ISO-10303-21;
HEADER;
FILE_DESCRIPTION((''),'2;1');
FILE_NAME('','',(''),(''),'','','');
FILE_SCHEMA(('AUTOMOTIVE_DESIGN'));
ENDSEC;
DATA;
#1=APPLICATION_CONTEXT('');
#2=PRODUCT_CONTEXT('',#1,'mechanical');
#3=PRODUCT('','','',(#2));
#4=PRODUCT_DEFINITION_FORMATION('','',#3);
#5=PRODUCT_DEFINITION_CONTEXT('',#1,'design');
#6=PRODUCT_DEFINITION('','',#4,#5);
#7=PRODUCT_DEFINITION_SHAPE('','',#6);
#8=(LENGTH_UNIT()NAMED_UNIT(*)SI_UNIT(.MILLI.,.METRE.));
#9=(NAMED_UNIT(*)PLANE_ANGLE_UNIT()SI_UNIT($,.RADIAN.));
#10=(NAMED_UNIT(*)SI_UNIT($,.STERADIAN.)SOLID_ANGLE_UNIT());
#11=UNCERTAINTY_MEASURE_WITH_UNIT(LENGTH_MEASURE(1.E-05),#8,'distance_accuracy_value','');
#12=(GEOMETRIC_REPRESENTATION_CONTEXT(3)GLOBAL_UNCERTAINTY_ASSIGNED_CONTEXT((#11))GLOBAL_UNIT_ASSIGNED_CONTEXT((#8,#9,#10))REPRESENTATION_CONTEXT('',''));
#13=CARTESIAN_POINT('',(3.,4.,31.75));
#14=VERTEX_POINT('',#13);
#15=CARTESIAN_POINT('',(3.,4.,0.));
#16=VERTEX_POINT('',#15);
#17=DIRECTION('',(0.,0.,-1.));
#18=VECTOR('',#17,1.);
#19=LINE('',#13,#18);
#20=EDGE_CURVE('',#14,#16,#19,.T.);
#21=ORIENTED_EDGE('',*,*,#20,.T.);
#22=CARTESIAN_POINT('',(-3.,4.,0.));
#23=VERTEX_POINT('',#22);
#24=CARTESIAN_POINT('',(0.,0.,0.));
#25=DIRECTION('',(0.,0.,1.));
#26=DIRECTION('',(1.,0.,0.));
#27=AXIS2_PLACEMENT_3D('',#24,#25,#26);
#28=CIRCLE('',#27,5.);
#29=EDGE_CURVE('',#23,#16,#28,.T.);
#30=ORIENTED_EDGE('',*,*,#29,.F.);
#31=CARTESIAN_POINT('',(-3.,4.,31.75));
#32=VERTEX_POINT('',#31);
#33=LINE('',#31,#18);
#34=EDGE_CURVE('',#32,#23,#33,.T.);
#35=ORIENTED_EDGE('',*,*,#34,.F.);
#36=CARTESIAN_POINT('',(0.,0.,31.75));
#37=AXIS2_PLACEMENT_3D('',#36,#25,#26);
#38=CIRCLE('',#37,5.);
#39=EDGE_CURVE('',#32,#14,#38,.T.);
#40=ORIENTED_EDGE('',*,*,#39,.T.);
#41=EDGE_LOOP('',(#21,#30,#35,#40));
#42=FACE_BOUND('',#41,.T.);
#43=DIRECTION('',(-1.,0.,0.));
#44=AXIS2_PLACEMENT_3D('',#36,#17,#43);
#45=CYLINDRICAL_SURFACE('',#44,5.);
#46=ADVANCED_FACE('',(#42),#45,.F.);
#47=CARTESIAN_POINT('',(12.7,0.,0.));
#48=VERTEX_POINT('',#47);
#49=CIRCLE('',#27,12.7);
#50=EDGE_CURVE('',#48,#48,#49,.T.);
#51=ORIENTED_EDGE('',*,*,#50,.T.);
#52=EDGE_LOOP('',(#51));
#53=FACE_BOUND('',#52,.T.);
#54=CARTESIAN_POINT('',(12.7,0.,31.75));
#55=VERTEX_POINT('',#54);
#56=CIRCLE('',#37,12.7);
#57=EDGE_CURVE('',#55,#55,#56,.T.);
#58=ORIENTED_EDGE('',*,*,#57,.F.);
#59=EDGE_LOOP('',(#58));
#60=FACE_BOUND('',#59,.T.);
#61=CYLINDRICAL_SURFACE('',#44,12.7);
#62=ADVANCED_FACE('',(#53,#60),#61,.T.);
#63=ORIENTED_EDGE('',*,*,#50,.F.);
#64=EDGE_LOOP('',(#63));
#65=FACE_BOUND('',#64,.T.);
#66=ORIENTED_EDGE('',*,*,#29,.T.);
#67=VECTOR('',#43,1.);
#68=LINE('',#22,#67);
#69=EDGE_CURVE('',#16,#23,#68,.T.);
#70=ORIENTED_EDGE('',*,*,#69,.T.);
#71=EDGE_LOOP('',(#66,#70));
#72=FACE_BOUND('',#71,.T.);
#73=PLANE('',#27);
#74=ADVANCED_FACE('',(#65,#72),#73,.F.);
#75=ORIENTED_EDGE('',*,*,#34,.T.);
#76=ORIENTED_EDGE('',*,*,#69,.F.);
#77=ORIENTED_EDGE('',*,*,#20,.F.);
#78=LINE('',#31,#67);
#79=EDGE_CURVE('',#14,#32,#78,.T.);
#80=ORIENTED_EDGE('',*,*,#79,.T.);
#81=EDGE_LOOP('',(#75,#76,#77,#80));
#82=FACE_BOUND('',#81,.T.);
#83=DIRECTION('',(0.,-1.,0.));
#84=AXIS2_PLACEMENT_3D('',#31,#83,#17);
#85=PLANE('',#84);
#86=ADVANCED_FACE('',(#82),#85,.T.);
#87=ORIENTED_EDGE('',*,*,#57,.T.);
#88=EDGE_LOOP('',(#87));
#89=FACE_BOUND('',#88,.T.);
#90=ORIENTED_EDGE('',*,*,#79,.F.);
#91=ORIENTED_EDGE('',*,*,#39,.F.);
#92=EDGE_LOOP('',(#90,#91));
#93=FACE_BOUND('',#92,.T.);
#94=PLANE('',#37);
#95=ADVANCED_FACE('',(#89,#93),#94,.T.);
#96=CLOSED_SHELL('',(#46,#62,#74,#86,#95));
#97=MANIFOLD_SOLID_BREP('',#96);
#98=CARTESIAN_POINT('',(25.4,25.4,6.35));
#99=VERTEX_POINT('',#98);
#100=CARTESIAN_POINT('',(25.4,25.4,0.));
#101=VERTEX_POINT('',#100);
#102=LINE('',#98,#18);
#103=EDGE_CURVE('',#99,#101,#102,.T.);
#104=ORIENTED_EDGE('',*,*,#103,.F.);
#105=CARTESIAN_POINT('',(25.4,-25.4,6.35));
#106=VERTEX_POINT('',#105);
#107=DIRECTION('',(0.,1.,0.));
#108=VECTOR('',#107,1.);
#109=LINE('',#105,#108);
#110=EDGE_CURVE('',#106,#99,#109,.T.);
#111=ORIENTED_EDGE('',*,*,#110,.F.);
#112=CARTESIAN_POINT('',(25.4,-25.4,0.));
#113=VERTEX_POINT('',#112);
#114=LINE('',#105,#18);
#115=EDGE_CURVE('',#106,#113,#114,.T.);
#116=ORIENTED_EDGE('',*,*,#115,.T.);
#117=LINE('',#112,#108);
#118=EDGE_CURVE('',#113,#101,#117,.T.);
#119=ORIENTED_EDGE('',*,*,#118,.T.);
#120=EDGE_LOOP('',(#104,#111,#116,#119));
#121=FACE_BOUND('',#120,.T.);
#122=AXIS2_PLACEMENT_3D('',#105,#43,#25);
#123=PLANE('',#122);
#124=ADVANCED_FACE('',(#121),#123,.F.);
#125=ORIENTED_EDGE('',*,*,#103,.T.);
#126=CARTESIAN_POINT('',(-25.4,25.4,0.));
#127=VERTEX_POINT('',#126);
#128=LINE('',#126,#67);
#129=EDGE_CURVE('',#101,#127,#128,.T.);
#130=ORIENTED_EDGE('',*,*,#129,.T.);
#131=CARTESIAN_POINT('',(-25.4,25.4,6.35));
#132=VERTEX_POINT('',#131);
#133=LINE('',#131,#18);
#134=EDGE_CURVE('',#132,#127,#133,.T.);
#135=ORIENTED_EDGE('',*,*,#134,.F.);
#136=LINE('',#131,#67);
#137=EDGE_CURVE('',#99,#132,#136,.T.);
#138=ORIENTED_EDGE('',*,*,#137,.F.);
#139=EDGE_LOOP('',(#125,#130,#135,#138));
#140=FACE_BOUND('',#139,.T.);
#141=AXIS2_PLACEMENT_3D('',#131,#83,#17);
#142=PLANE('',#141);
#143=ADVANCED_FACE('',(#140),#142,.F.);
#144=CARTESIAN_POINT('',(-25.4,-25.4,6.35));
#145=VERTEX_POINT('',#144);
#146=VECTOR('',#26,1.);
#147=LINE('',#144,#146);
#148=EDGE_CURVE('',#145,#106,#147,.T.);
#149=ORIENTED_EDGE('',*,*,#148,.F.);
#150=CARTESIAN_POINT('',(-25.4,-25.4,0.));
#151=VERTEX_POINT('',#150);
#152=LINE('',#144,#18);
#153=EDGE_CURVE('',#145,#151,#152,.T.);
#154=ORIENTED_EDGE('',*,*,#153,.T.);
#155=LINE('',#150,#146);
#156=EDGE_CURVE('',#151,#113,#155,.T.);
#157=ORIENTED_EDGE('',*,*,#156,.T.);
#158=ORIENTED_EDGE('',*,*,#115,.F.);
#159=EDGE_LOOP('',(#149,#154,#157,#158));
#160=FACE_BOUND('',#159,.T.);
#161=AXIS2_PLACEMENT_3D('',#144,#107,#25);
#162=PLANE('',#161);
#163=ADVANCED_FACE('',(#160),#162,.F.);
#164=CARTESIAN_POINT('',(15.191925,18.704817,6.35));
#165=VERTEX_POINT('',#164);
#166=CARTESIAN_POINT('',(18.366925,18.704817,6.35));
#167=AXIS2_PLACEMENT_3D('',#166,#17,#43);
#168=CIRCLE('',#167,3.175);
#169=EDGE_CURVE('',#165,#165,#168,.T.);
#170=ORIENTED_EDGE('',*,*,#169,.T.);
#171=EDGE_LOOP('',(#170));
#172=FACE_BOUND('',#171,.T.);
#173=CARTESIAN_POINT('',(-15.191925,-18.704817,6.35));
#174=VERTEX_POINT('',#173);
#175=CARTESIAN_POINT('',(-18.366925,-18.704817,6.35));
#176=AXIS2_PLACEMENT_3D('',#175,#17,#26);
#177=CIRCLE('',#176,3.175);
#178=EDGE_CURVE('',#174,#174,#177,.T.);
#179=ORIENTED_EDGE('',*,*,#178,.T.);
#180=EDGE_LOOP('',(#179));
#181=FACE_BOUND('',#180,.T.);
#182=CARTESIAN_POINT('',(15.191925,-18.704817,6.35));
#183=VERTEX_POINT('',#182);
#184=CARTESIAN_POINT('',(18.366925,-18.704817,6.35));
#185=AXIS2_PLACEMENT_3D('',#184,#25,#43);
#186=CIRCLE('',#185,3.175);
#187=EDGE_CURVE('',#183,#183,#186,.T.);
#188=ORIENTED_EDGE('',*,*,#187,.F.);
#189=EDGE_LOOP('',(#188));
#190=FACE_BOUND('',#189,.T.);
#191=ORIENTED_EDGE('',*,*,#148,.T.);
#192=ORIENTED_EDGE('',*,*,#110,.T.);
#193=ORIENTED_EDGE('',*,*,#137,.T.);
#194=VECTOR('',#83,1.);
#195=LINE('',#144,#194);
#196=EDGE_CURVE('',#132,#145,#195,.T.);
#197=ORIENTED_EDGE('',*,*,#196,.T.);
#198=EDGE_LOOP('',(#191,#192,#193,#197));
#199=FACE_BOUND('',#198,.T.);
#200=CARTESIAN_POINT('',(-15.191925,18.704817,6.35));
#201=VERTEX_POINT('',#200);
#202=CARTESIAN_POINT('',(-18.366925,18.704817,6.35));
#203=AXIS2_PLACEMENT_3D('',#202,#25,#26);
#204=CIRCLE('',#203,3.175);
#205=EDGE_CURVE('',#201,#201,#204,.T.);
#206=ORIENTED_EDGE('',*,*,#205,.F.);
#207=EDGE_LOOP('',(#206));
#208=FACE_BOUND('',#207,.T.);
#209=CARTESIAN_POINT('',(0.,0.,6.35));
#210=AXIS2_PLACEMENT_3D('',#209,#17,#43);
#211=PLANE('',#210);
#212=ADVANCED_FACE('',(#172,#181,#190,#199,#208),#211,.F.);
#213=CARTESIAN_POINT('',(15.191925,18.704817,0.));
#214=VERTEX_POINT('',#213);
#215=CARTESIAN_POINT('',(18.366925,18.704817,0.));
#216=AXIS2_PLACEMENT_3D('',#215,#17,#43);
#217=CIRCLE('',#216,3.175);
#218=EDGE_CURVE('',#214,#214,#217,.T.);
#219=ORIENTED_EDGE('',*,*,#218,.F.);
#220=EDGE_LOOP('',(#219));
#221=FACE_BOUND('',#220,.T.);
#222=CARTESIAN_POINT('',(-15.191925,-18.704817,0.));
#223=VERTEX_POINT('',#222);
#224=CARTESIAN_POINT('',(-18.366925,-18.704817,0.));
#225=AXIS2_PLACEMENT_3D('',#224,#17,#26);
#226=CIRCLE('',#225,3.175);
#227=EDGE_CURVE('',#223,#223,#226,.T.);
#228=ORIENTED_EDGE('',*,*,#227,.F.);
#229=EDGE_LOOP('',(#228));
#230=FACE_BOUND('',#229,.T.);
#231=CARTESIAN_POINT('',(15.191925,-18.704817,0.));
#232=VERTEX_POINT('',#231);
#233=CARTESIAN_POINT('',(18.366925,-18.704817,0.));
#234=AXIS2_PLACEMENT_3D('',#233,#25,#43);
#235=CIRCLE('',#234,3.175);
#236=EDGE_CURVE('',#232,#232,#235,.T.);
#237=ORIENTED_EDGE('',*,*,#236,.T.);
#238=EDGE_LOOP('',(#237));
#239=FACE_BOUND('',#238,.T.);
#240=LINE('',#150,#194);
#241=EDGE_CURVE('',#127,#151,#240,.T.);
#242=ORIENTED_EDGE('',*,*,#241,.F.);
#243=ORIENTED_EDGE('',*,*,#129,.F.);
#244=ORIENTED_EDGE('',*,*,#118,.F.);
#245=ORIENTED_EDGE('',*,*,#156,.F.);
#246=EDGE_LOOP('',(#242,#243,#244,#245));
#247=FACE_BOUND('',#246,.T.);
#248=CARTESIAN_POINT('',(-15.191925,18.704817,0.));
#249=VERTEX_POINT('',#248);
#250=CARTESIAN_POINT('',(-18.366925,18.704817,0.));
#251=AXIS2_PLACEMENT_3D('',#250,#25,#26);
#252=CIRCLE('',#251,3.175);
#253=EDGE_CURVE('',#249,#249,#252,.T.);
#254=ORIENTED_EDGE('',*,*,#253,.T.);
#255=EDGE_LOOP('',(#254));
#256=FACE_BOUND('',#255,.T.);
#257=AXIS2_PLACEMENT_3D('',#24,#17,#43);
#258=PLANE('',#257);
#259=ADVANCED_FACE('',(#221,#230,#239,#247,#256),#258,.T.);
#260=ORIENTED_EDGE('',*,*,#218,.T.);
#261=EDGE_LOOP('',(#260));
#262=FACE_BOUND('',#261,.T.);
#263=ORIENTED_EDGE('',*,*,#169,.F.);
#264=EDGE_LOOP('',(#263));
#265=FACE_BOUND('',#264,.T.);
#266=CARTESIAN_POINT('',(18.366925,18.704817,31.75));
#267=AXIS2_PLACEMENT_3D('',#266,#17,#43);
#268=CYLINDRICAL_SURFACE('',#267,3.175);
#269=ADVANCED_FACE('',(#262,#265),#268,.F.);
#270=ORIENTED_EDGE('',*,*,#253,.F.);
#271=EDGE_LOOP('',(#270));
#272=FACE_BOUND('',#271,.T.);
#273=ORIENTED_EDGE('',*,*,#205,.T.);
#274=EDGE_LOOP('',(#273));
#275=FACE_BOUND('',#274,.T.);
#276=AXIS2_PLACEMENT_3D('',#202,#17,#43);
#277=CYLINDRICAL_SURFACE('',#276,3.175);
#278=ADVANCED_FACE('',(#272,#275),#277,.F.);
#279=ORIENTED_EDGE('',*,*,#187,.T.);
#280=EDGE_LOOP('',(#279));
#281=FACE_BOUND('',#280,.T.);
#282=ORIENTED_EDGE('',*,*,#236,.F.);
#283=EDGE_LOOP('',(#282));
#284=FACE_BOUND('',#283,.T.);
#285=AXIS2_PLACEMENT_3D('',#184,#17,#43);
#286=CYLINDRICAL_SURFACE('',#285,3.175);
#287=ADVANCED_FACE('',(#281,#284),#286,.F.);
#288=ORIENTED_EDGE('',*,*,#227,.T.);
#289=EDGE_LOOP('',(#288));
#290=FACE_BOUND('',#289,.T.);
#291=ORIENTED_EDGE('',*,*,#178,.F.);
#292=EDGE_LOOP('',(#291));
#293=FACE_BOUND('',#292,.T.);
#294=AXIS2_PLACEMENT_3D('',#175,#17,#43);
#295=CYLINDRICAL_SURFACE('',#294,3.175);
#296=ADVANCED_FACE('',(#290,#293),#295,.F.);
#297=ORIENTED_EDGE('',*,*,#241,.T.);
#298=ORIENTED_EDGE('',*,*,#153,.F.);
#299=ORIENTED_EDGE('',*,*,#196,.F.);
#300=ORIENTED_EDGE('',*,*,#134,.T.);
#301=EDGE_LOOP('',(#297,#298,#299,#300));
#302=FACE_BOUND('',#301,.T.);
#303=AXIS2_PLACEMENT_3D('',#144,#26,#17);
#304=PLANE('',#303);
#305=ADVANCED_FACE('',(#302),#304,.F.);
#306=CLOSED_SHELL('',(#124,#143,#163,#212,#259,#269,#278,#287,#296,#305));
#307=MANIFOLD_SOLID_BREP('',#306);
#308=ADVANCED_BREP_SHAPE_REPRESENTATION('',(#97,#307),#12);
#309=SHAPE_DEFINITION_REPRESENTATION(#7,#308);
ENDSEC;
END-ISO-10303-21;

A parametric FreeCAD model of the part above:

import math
import FreeCAD as App
import Part
import Sketcher
Q = App.Units.Quantity

doc = App.newDocument("Part")
body = doc.addObject("PartDesign::Body", "Body")

# Sketch on XY plane
sketch1 = doc.addObject("Sketcher::SketchObject", "Sketch")
body.addObject(sketch1)
sketch1.AttachmentSupport = (doc.XY_Plane, [""])
sketch1.MapMode = "FlatFace"
sketch1.addGeometry(Part.Circle(App.Vector(0, 0, 0), App.Vector(0, 0, 1), 12.7), False)
sketch1.addGeometry(Part.ArcOfCircle(Part.Circle(App.Vector(0, 0, 0), App.Vector(0, 0, 1), 5), math.radians(127), math.radians(413)), False)
sketch1.addGeometry(Part.LineSegment(App.Vector(-3, 4, 0), App.Vector(3, 4, 0)), False)
sketch1.addConstraint(Sketcher.Constraint("Coincident", 1, 1, 2, 1))
sketch1.addConstraint(Sketcher.Constraint("Coincident", 2, 2, 1, 2))
sketch1.addConstraint(Sketcher.Constraint("Horizontal", 2))
sketch1.addConstraint(Sketcher.Constraint("Coincident", 0, 3, -1, 1))
sketch1.addConstraint(Sketcher.Constraint("Coincident", 1, 3, -1, 1))
sketch1.addConstraint(Sketcher.Constraint("Diameter", 0, Q("1 in")))
sketch1.addConstraint(Sketcher.Constraint("Radius", 1, Q("5 mm")))
sketch1.addConstraint(Sketcher.Constraint("DistanceX", 2, 1, 2, 2, Q("6 mm")))
pad1 = doc.addObject("PartDesign::Pad", "Pad")
body.addObject(pad1)
pad1.Profile = sketch1
pad1.Length = Q("1.25 in")
body2 = doc.addObject("PartDesign::Body", "Body001")

# Sketch on XY plane
sketch2 = doc.addObject("Sketcher::SketchObject", "Sketch001")
body2.addObject(sketch2)
sketch2.AttachmentSupport = (doc.getObject("XY_Plane001"), [""])
sketch2.MapMode = "FlatFace"
sketch2.addGeometry(Part.LineSegment(App.Vector(-25, 25, 0), App.Vector(-25, -25, 0)), False)
sketch2.addGeometry(Part.LineSegment(App.Vector(-25, -25, 0), App.Vector(25, -25, 0)), False)
sketch2.addGeometry(Part.LineSegment(App.Vector(25, -25, 0), App.Vector(25, 25, 0)), False)
sketch2.addGeometry(Part.LineSegment(App.Vector(25, 25, 0), App.Vector(-25, 25, 0)), False)
sketch2.addConstraint(Sketcher.Constraint("Coincident", 0, 2, 1, 1))
sketch2.addConstraint(Sketcher.Constraint("Coincident", 1, 2, 2, 1))
sketch2.addConstraint(Sketcher.Constraint("Coincident", 2, 2, 3, 1))
sketch2.addConstraint(Sketcher.Constraint("Coincident", 3, 2, 0, 1))
sketch2.addConstraint(Sketcher.Constraint("Vertical", 0))
sketch2.addConstraint(Sketcher.Constraint("Horizontal", 1))
sketch2.addConstraint(Sketcher.Constraint("Vertical", 2))
sketch2.addConstraint(Sketcher.Constraint("Horizontal", 3))
sketch2.addConstraint(Sketcher.Constraint("Symmetric", 0, 2, 2, 2, -1, 1))
sketch2.addConstraint(Sketcher.Constraint("Equal", 3, 0))
sketch2.addConstraint(Sketcher.Constraint("DistanceX", 1, 1, 1, 2, Q("2 in")))
pad2 = doc.addObject("PartDesign::Pad", "Pad001")
body2.addObject(pad2)
pad2.Profile = sketch2
pad2.Length = Q("0.25 in")

# Sketch on XY plane
sketch3 = doc.addObject("Sketcher::SketchObject", "Sketch002")
body2.addObject(sketch3)
sketch3.AttachmentSupport = (doc.getObject("XY_Plane001"), [""])
sketch3.MapMode = "FlatFace"
sketch3.addGeometry(Part.Circle(App.Vector(18.4, 18.7, 0), App.Vector(0, 0, 1), 3.2), False)
sketch3.addConstraint(Sketcher.Constraint("Diameter", 0, Q("0.25 in")))
sketch3.addConstraint(Sketcher.Constraint("DistanceX", -1, 1, 0, 3, Q("18.366925 mm")))
sketch3.addConstraint(Sketcher.Constraint("DistanceY", -1, 1, 0, 3, Q("18.704817 mm")))
pocket1 = doc.addObject("PartDesign::Pocket", "Pocket")
body2.addObject(pocket1)
pocket1.Profile = sketch3
pocket1.Type = "ThroughAll"
pocket1.Reversed = True
doc.recompute()

mirrored = doc.addObject("PartDesign::Mirrored", "Mirrored")
body2.addObject(mirrored)
mirrored.Originals = [pocket1]
mirrored.MirrorPlane = (doc.getObject("YZ_Plane001"), [""])
body2.Tip = mirrored
doc.recompute()

mirrored2 = doc.addObject("PartDesign::Mirrored", "Mirrored001")
body2.addObject(mirrored2)
mirrored2.Originals = [pocket1]
mirrored2.MirrorPlane = (doc.getObject("XZ_Plane001"), [""])
body2.Tip = mirrored2

# Sketch on XY plane
sketch4 = doc.addObject("Sketcher::SketchObject", "Sketch003")
body2.addObject(sketch4)
sketch4.AttachmentSupport = (doc.getObject("XY_Plane001"), [""])
sketch4.MapMode = "FlatFace"
sketch4.addGeometry(Part.Circle(App.Vector(-18.4, -18.7, 0), App.Vector(0, 0, 1), 3.2), False)
sketch4.addConstraint(Sketcher.Constraint("Diameter", 0, Q("0.25 in")))
sketch4.addConstraint(Sketcher.Constraint("DistanceX", 0, 3, -1, 1, Q("18.366925 mm")))
sketch4.addConstraint(Sketcher.Constraint("DistanceY", 0, 3, -1, 1, Q("18.704817 mm")))
pocket2 = doc.addObject("PartDesign::Pocket", "Pocket001")
body2.addObject(pocket2)
pocket2.Profile = sketch4
pocket2.Type = "ThroughAll"
pocket2.Reversed = True

doc.recompute()
